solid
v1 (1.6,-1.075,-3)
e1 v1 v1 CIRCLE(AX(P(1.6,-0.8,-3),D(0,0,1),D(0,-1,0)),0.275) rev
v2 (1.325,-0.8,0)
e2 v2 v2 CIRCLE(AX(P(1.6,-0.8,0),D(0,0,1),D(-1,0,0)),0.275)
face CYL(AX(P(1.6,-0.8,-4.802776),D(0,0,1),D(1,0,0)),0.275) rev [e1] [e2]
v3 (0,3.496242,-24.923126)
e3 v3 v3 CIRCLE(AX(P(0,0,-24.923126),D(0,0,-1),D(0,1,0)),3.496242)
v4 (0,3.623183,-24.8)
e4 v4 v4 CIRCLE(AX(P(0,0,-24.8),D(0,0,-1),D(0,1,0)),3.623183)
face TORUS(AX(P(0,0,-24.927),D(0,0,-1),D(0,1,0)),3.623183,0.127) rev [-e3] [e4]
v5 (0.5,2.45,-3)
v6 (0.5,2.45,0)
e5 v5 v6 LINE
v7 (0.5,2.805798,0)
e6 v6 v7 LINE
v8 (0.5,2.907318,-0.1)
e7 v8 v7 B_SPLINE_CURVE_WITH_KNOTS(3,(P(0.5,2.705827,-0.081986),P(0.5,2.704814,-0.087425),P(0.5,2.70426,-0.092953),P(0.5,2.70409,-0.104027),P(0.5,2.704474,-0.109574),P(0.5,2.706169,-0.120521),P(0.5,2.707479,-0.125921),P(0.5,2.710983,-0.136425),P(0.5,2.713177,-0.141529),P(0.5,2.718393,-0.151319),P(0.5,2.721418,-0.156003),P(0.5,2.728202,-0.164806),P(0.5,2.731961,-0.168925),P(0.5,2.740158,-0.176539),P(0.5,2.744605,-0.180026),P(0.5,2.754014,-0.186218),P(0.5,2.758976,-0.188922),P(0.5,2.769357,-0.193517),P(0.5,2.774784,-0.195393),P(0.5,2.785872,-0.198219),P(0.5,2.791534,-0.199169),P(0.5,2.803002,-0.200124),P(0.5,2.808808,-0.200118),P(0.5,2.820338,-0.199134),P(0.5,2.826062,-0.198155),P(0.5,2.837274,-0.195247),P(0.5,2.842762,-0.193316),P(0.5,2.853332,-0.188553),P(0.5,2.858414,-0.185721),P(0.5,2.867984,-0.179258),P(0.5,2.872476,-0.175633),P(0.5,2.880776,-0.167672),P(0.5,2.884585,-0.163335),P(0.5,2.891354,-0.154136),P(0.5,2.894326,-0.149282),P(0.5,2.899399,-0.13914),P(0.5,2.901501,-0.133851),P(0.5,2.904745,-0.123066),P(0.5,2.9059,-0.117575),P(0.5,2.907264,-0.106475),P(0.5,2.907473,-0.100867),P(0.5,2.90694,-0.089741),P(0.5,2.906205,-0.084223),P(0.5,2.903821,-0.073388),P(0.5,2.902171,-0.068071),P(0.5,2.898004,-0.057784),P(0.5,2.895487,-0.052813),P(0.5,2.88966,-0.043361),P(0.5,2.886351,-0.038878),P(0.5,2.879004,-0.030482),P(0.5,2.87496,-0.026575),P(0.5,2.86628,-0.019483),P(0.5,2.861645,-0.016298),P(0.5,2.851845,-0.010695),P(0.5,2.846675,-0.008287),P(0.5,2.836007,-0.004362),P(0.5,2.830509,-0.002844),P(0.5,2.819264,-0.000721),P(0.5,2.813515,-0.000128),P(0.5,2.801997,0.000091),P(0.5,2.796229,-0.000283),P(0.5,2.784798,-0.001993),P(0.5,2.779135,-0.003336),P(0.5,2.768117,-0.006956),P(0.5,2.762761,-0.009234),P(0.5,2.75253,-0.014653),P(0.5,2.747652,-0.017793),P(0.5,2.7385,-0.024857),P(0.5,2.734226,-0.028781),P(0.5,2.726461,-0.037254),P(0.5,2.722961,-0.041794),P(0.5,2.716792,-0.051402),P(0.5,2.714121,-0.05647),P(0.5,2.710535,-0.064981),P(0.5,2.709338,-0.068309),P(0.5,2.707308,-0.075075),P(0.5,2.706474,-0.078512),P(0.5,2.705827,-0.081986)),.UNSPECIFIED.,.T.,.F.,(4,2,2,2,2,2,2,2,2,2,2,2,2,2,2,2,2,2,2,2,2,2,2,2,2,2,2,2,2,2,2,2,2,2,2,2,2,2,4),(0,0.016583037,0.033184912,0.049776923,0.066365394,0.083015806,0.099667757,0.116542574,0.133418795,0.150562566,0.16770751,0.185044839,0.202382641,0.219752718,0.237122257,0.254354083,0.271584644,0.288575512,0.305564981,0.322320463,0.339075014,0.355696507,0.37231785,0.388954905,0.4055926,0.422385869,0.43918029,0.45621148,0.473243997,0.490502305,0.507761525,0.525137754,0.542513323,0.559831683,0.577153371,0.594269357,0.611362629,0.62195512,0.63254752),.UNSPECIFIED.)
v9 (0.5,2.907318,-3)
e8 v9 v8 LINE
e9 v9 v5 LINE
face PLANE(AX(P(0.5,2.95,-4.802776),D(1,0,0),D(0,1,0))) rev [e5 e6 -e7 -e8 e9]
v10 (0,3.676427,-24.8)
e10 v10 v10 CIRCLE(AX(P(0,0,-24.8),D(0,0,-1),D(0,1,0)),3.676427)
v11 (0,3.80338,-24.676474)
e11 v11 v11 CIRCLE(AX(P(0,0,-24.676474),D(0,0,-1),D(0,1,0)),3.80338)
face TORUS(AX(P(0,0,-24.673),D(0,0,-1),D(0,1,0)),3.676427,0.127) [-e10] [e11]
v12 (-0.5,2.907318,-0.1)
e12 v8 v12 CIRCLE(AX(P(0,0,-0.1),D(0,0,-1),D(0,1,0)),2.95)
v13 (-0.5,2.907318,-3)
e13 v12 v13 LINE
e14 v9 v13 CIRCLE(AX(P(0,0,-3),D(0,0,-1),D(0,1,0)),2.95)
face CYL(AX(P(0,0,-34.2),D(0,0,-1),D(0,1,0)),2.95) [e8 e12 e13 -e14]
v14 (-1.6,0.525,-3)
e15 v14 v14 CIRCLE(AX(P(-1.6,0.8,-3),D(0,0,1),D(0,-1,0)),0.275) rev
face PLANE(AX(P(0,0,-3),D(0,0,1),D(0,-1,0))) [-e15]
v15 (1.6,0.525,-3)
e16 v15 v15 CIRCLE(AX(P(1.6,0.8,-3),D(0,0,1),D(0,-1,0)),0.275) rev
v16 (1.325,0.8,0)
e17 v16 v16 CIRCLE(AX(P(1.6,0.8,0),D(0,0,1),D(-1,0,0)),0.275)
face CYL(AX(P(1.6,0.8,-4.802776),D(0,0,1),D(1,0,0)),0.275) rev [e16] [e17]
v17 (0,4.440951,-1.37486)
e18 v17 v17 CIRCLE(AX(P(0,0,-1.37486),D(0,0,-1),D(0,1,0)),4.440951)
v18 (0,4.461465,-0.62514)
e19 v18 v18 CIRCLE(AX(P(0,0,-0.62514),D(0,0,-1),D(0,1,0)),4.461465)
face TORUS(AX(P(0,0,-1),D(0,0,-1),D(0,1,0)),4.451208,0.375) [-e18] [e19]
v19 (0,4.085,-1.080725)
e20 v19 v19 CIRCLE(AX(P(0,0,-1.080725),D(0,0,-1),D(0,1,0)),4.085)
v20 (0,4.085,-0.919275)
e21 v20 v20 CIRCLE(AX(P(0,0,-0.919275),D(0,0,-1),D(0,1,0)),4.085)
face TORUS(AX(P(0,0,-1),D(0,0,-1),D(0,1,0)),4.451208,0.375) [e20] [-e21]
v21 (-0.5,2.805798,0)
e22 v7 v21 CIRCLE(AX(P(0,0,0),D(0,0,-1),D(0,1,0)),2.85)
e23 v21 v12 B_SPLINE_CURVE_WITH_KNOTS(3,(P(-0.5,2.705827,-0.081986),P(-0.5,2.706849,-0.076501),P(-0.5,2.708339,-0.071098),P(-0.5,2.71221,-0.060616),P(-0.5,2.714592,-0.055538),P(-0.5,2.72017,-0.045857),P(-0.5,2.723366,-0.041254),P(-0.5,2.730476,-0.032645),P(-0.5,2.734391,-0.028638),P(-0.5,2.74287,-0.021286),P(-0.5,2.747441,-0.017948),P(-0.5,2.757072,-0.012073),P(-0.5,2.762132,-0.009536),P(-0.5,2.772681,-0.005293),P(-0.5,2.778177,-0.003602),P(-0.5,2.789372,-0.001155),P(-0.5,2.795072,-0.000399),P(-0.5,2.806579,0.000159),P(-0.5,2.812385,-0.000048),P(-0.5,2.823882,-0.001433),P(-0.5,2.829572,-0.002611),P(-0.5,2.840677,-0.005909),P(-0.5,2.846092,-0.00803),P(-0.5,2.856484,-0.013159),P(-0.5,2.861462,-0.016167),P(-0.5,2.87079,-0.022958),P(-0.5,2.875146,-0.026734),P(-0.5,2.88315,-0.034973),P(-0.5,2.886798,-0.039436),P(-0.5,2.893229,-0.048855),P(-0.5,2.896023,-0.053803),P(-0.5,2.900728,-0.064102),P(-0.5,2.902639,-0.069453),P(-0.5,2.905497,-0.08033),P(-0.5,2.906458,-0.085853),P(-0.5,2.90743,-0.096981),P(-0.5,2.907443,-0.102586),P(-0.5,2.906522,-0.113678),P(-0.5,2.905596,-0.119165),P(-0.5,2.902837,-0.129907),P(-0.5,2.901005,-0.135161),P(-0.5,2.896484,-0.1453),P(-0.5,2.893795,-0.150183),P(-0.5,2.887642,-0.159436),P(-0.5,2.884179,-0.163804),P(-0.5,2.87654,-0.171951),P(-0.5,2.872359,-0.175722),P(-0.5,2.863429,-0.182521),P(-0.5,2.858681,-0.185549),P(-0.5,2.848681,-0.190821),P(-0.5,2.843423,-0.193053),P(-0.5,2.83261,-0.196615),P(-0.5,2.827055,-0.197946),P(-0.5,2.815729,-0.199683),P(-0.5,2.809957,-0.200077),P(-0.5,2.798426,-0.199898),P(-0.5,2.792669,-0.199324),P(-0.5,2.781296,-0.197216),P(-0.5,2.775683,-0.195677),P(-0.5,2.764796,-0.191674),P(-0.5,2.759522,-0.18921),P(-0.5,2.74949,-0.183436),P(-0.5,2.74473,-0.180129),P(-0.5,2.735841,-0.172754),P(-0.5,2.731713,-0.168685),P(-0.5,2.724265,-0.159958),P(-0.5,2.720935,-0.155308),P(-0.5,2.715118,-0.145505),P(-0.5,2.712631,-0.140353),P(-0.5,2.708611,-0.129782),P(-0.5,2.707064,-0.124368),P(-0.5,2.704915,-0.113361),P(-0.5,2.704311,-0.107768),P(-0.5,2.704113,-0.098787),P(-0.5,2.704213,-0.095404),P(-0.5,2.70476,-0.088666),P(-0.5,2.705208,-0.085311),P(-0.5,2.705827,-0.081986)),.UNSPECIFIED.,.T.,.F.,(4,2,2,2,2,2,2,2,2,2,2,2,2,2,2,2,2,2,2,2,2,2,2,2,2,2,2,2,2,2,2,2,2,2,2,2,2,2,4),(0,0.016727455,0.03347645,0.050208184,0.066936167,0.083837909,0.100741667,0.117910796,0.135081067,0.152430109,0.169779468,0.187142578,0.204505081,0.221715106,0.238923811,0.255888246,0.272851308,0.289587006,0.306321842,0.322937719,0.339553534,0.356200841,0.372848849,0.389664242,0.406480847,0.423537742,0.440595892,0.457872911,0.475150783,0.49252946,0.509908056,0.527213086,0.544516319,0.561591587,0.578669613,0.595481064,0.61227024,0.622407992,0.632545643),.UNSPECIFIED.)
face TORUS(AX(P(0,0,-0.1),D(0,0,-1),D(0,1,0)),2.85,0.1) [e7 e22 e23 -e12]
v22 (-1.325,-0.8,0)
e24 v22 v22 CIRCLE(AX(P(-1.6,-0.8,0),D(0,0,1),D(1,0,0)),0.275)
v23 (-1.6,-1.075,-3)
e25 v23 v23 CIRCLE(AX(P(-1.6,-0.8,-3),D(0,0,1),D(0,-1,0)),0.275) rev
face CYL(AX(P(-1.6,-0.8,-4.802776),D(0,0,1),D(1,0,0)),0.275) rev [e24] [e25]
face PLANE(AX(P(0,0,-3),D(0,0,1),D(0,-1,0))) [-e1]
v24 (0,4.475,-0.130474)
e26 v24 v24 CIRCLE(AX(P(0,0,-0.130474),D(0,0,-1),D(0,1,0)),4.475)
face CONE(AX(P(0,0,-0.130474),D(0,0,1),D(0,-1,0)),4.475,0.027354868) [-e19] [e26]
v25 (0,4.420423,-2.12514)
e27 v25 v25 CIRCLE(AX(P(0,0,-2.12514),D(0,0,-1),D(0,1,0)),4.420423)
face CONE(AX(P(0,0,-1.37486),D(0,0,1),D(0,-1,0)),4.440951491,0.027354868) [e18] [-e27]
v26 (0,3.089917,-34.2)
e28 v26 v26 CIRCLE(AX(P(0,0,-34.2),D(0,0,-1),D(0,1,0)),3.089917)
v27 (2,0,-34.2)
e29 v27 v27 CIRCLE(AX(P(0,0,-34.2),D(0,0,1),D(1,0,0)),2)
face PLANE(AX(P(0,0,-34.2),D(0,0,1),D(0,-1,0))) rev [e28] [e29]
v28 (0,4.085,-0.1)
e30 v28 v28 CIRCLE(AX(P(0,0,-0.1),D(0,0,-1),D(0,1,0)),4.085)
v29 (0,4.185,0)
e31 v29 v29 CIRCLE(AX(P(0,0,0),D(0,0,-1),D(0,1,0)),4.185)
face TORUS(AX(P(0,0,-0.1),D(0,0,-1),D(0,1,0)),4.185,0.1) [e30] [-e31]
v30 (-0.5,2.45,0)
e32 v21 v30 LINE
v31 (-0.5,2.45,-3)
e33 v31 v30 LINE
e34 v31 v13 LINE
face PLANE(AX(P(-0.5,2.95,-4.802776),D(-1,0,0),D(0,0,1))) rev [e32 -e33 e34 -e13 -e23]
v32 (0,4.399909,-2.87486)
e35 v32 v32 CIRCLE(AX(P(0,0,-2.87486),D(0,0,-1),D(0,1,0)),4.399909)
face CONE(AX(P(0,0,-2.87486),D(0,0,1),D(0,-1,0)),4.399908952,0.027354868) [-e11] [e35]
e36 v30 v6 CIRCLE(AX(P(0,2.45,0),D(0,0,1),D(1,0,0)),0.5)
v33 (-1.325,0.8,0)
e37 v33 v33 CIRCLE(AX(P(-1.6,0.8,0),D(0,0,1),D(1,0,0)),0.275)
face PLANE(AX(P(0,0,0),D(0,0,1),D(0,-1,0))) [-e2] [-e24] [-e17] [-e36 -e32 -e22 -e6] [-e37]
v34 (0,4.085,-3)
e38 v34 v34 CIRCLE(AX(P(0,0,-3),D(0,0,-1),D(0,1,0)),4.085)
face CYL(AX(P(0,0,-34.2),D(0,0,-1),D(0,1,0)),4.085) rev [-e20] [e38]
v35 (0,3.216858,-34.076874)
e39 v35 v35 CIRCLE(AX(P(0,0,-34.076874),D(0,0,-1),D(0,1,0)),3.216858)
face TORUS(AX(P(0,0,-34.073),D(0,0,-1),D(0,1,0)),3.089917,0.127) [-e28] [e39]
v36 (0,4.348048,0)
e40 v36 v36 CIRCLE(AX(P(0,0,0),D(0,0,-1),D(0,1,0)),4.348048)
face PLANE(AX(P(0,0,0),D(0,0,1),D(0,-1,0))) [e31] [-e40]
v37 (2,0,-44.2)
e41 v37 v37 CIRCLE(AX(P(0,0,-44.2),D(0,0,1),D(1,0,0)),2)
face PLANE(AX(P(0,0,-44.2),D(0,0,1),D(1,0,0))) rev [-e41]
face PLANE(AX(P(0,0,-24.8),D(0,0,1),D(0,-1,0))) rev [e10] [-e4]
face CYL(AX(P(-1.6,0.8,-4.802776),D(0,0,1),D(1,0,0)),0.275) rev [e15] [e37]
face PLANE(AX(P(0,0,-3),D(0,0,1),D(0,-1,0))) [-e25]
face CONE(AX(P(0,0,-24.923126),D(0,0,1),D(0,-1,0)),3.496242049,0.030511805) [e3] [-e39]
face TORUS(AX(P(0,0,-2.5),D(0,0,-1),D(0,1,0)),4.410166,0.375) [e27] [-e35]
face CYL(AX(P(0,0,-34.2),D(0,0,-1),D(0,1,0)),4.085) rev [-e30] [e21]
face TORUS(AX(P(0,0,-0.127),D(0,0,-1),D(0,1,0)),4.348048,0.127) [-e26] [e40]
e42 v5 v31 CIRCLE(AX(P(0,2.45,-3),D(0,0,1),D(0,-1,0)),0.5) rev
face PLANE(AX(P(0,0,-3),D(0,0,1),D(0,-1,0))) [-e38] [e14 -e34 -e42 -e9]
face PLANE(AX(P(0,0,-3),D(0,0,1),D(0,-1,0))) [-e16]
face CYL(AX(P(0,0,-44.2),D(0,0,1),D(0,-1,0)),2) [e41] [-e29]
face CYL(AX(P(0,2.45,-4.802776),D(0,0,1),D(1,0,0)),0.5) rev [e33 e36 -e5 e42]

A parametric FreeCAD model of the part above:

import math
import FreeCAD as App
import Part
import Sketcher

doc = App.newDocument("Part")
body = doc.addObject("PartDesign::Body", "Body")

# Sketch on YZ plane
sketch1 = body.newObject("Sketcher::SketchObject", "Sketch")
sketch1.AttachmentSupport = (doc.getObject("YZ_Plane"), [""])
sketch1.MapMode = "FlatFace"
sketch1.addGeometry([
    Part.LineSegment(App.Vector(4.461465, -0.62514, 0), App.Vector(4.475, -0.130474, 0)),  # 0
    Part.ArcOfCircle(Part.Circle(App.Vector(4.348048, -0.127, 0), App.Vector(0, 0, 1), 0.127), math.radians(-1.567318), math.radians(90)),  # 1
    Part.LineSegment(App.Vector(4.348048, 0, 0), App.Vector(4.185, 0, 0)),  # 2
    Part.ArcOfCircle(Part.Circle(App.Vector(4.185, -0.1, 0), App.Vector(0, 0, 1), 0.1), math.radians(90), math.radians(180)),  # 3
    Part.LineSegment(App.Vector(4.085, -0.1, 0), App.Vector(4.085, -0.919275, 0)),  # 4
    Part.ArcOfCircle(Part.Circle(App.Vector(4.451208, -1, 0), App.Vector(0, 0, 1), 0.375), math.radians(167.568862), math.radians(192.431138)),  # 5
    Part.LineSegment(App.Vector(4.085, -1.080725, 0), App.Vector(4.085, -3, 0)),  # 6
    Part.LineSegment(App.Vector(4.085, -3, 0), App.Vector(2.95, -3, 0)),  # 7
    Part.LineSegment(App.Vector(2.95, -3, 0), App.Vector(2.95, -0.1, 0)),  # 8
    Part.ArcOfCircle(Part.Circle(App.Vector(2.85, -0.1, 0), App.Vector(0, 0, 1), 0.1), math.radians(0), math.radians(90)),  # 9
    Part.LineSegment(App.Vector(2.85, 0, 0), App.Vector(0, 0, 0)),  # 10
    Part.LineSegment(App.Vector(0, 0, 0), App.Vector(0, -34.2, 0)),  # 11
    Part.LineSegment(App.Vector(0, -34.2, 0), App.Vector(3.089917, -34.2, 0)),  # 12
    Part.ArcOfCircle(Part.Circle(App.Vector(3.089917, -34.073, 0), App.Vector(0, 0, 1), 0.127), math.radians(-90), math.radians(-1.748198)),  # 13
    Part.LineSegment(App.Vector(3.216858, -34.076874, 0), App.Vector(3.496242, -24.923126, 0)),  # 14
    Part.ArcOfCircle(Part.Circle(App.Vector(3.623183, -24.927, 0), App.Vector(0, 0, 1), 0.127), math.radians(90), math.radians(178.251802)),  # 15
    Part.LineSegment(App.Vector(3.623183, -24.8, 0), App.Vector(3.676427, -24.8, 0)),  # 16
    Part.ArcOfCircle(Part.Circle(App.Vector(3.676427, -24.673, 0), App.Vector(0, 0, 1), 0.127), math.radians(-90), math.radians(-1.567318)),  # 17
    Part.LineSegment(App.Vector(3.80338, -24.676474, 0), App.Vector(4.399909, -2.87486, 0)),  # 18
    Part.ArcOfCircle(Part.Circle(App.Vector(4.410166, -2.5, 0), App.Vector(0, 0, 1), 0.375), math.radians(-91.567318), math.radians(88.432681)),  # 19
    Part.LineSegment(App.Vector(4.420423, -2.12514, 0), App.Vector(4.440951, -1.37486, 0)),  # 20
    Part.ArcOfCircle(Part.Circle(App.Vector(4.451208, -1, 0), App.Vector(0, 0, 1), 0.375), math.radians(-91.567318), math.radians(88.432681)),  # 21
], False)
sketch1.addConstraint([
    Sketcher.Constraint("Coincident", 0, 2, 1, 1),
    Sketcher.Constraint("Coincident", 1, 2, 2, 1),
    Sketcher.Constraint("Coincident", 2, 2, 3, 1),
    Sketcher.Constraint("Coincident", 3, 2, 4, 1),
    Sketcher.Constraint("Coincident", 4, 2, 5, 1),
    Sketcher.Constraint("Coincident", 5, 2, 6, 1),
    Sketcher.Constraint("Coincident", 6, 2, 7, 1),
    Sketcher.Constraint("Coincident", 7, 2, 8, 1),
    Sketcher.Constraint("Coincident", 8, 2, 9, 1),
    Sketcher.Constraint("Coincident", 9, 2, 10, 1),
    Sketcher.Constraint("Coincident", 10, 2, 11, 1),
    Sketcher.Constraint("Coincident", 11, 2, 12, 1),
    Sketcher.Constraint("Coincident", 12, 2, 13, 1),
    Sketcher.Constraint("Coincident", 13, 2, 14, 1),
    Sketcher.Constraint("Coincident", 14, 2, 15, 2),
    Sketcher.Constraint("Coincident", 15, 1, 16, 1),
    Sketcher.Constraint("Coincident", 16, 2, 17, 1),
    Sketcher.Constraint("Coincident", 17, 2, 18, 1),
    Sketcher.Constraint("Coincident", 18, 2, 19, 1),
    Sketcher.Constraint("Coincident", 19, 2, 20, 1),
    Sketcher.Constraint("Coincident", 20, 2, 21, 1),
    Sketcher.Constraint("Coincident", 21, 2, 0, 1),
    Sketcher.Constraint("Horizontal", 2),
    Sketcher.Constraint("Vertical", 4),
    Sketcher.Constraint("Vertical", 6),
    Sketcher.Constraint("Horizontal", 7),
    Sketcher.Constraint("Vertical", 8),
    Sketcher.Constraint("Horizontal", 10),
    Sketcher.Constraint("Vertical", 11),
    Sketcher.Constraint("Horizontal", 12),
    Sketcher.Constraint("Horizontal", 16),
    Sketcher.Constraint("Coincident", 10, 2, -1, 1),
    Sketcher.Constraint("Coincident", 21, 3, 5, 3),
    Sketcher.Constraint("PointOnObject", 1, 2, -1),
    Sketcher.Constraint("Radius", 3, 0.1),
    Sketcher.Constraint("Radius", 9, 0.1),
    Sketcher.Constraint("DistanceY", 8, 1, 8, 2, 2.9),
    Sketcher.Constraint("DistanceY", 11, 2, 11, 1, 34.2),
    Sketcher.Constraint("DistanceY", 5, 3, -1, 1, 1.0),
    Sketcher.Constraint("DistanceY", 6, 2, -1, 1, 3.0),
    Sketcher.Constraint("Radius", 1, 0.127),
    Sketcher.Constraint("Radius", 5, 0.375),
    Sketcher.Constraint("Radius", 13, 0.127),
    Sketcher.Constraint("Radius", 15, 0.127),
    Sketcher.Constraint("Radius", 17, 0.127),
    Sketcher.Constraint("Radius", 19, 0.375),
    Sketcher.Constraint("Radius", 21, 0.375),
    Sketcher.Constraint("DistanceX", 10, 2, 10, 1, 2.85),
    Sketcher.Constraint("DistanceY", 19, 3, -1, 1, 2.5),
    Sketcher.Constraint("DistanceY", 3, 2, -1, 1, 0.1),
    Sketcher.Constraint("DistanceY", 15, 1, -1, 1, 24.8),
    Sketcher.Constraint("DistanceX", 3, 2, 2, 2, 0.1),
    Sketcher.Constraint("DistanceX", 5, 2, 3, 3, 0.1),
    Sketcher.Constraint("DistanceX", 9, 2, 8, 2, 0.1),
    Sketcher.Constraint("DistanceX", 7, 2, 7, 1, 1.135),
    Sketcher.Constraint("DistanceX", 3, 3, 0, 2, 0.29),
    Sketcher.Constraint("DistanceX", 18, 2, 21, 3, 0.051299),
    Sketcher.Constraint("Distance", 0, 0.494852),
    Sketcher.Constraint("Distance", 14, 9.158011),
    Sketcher.Constraint("Distance", 20, 0.750561),
    Sketcher.Constraint("DistanceX", 2, 2, 2, 1, 0.163048),
    Sketcher.Constraint("DistanceX", 12, 1, 12, 2, 3.089917),
    Sketcher.Constraint("DistanceX", 16, 1, 16, 2, 0.053244),
    Sketcher.Constraint("DistanceY", 4, 2, 4, 1, 0.819275),
    Sketcher.Constraint("DistanceX", -1, 1, 17, 2, 3.80338),
    Sketcher.Constraint("DistanceY", 19, 2, -1, 1, 2.12514),
    Sketcher.Constraint("DistanceX", -1, 1, 20, 2, 4.440951),
    Sketcher.Constraint("DistanceY", 21, 2, -1, 1, 0.62514),
    Sketcher.Constraint("DistanceX", 13, 3, 5, 3, 1.361291),
    Sketcher.Constraint("DistanceX", 13, 3, 17, 3, 0.58651),
    Sketcher.Constraint("DistanceX", 13, 3, 13, 2, 0.126941),
    Sketcher.Constraint("DistanceY", 13, 2, 14, 2, 9.153749),
    Sketcher.Constraint("DistanceX", 14, 2, 15, 1, 0.126941),
])
revolution = body.newObject("PartDesign::Revolution", "Revolution")
revolution.Profile = sketch1
revolution.ReferenceAxis = (sketch1, ["V_Axis"])
revolution.Angle = 360

# Sketch on XY plane
sketch2 = body.newObject("Sketcher::SketchObject", "Sketch001")
sketch2.AttachmentSupport = (doc.getObject("XY_Plane"), [""])
sketch2.MapMode = "FlatFace"
sketch2.AttachmentOffset = App.Placement(App.Vector(0, 0, -44.2), App.Rotation())
sketch2.addGeometry(Part.Circle(App.Vector(0, 0, 0), App.Vector(0, 0, 1), 2), False)
sketch2.addConstraint([
    Sketcher.Constraint("Coincident", 0, 3, -1, 1),
    Sketcher.Constraint("Diameter", 0, 4.0),
])

# Sketch on XZ plane
sketch3 = body.newObject("Sketcher::SketchObject", "Sketch002")
sketch3.AttachmentSupport = (doc.getObject("XZ_Plane"), [""])
sketch3.MapMode = "FlatFace"
sketch3.addGeometry(Part.LineSegment(App.Vector(0, -44, 0), App.Vector(0, -34, 0)), False)
sketch3.addConstraint([
    Sketcher.Constraint("Vertical", 0),
    Sketcher.Constraint("PointOnObject", 0, 1, -2),
    Sketcher.Constraint("DistanceY", 0, 1, 0, 2, 10.0),
    Sketcher.Constraint("DistanceY", 0, 1, -1, 1, 44.2),
])
doc.recompute()

additivepipe = body.newObject("PartDesign::AdditivePipe", "AdditivePipe")
additivepipe.Profile = sketch2
additivepipe.Spine = (sketch3, ["Edge1"])

# Sketch on XY plane
sketch4 = body.newObject("Sketcher::SketchObject", "Sketch003")
sketch4.AttachmentSupport = (doc.getObject("XY_Plane"), [""])
sketch4.MapMode = "FlatFace"
sketch4.addGeometry([
    Part.Circle(App.Vector(-1.6, 0.8, 0), App.Vector(0, 0, 1), 0.28),  # 0
    Part.Circle(App.Vector(-1.6, -0.8, 0), App.Vector(0, 0, 1), 0.28),  # 1
    Part.Circle(App.Vector(1.6, -0.8, 0), App.Vector(0, 0, 1), 0.28),  # 2
    Part.Circle(App.Vector(1.6, 0.8, 0), App.Vector(0, 0, 1), 0.28),  # 3
    Part.LineSegment(App.Vector(0.5, 2.45, 0), App.Vector(0.5, 2.95, 0)),  # 4
    Part.ArcOfCircle(Part.Circle(App.Vector(0, 2.95, 0), App.Vector(0, 0, 1), 0.5), math.radians(0), math.radians(180)),  # 5
    Part.LineSegment(App.Vector(-0.5, 2.95, 0), App.Vector(-0.5, 2.45, 0)),  # 6
    Part.ArcOfCircle(Part.Circle(App.Vector(0, 2.45, 0), App.Vector(0, 0, 1), 0.5), math.radians(180), math.radians(360)),  # 7
], False)
sketch4.addConstraint([
    Sketcher.Constraint("Tangent", 4, 2, 5, 1),
    Sketcher.Constraint("Tangent", 5, 2, 6, 1),
    Sketcher.Constraint("Tangent", 6, 2, 7, 1),
    Sketcher.Constraint("Tangent", 7, 2, 4, 1),
    Sketcher.Constraint("Vertical", 4),
    Sketcher.Constraint("Vertical", 6),
    Sketcher.Constraint("Equal", 0, 1),
    Sketcher.Constraint("Equal", 1, 2),
    Sketcher.Constraint("Equal", 2, 3),
    Sketcher.Constraint("Symmetric", 0, 3, 2, 3, -1, 1),
    Sketcher.Constraint("Symmetric", 1, 3, 3, 3, -1, 1),
    Sketcher.Constraint("Symmetric", 1, 3, 2, 3, -2),
    Sketcher.Constraint("PointOnObject", 5, 3, -2),
    Sketcher.Constraint("Radius", 5, 0.5),
    Sketcher.Constraint("Diameter", 0, 0.55),
    Sketcher.Constraint("DistanceY", 4, 1, 4, 2, 0.5),
    Sketcher.Constraint("DistanceX", 0, 3, -1, 1, 1.6),
    Sketcher.Constraint("DistanceY", -1, 1, 0, 3, 0.8),
    Sketcher.Constraint("DistanceY", -1, 1, 5, 3, 2.95),
])
pocket1 = body.newObject("PartDesign::Pocket", "Pocket")
pocket1.Profile = sketch4
pocket1.Length = 3

doc.recompute()
